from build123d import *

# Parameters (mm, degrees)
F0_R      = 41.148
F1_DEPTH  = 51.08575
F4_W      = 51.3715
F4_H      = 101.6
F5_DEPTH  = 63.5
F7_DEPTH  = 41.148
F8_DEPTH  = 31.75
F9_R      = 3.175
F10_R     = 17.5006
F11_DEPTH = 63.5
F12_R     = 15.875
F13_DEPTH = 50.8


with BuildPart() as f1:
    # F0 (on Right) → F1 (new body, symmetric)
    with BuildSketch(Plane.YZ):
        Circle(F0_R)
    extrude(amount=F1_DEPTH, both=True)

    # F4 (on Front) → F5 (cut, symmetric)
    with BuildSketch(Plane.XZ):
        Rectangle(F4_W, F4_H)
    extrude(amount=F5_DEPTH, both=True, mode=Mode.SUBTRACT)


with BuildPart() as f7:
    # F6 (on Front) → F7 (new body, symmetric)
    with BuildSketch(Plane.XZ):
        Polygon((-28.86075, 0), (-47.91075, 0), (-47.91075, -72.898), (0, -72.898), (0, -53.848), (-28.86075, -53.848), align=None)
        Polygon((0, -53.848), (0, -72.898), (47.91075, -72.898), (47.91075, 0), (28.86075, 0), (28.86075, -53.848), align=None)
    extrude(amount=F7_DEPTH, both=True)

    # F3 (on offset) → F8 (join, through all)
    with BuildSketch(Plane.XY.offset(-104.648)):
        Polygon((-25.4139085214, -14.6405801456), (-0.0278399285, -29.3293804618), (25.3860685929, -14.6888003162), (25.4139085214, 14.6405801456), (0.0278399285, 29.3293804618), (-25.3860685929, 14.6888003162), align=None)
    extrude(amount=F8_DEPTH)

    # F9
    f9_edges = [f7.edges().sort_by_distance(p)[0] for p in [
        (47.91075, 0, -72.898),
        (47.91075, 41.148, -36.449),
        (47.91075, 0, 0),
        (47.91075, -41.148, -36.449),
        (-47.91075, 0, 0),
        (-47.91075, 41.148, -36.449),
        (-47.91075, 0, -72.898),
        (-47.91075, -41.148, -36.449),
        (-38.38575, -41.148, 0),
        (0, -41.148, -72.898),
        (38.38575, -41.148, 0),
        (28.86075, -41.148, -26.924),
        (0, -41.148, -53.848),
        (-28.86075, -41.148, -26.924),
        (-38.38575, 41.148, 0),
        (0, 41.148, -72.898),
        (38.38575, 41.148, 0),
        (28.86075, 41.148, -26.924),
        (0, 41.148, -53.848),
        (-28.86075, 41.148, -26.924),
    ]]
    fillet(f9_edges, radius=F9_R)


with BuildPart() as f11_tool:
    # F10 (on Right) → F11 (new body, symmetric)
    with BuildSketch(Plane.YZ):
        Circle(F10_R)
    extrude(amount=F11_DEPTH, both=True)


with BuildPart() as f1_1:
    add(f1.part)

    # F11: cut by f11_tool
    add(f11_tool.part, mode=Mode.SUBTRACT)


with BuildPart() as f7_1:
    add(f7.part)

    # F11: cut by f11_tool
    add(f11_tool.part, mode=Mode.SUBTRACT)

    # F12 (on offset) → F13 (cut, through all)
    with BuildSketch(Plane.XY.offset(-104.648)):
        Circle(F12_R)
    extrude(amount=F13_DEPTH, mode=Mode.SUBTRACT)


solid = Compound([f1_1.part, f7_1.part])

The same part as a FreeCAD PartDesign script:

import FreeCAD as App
import Part
import Sketcher
from FreeCAD import Vector
Q = App.Units.Quantity


def edges_at(feature, points):
    """Names of the edges that pass closest to the given points."""
    edges = feature.Shape.Edges
    near = lambda p: min(range(len(edges)), key=lambda i: edges[i].distToShape(Part.Vertex(*p))[0])
    return sorted({f"Edge{near(p) + 1}" for p in points})

doc = App.newDocument("Part")
body = doc.addObject("PartDesign::Body", "Body")
body.AllowCompound = True

# Sketch on YZ plane
sketch1 = doc.addObject("Sketcher::SketchObject", "Sketch")
body.addObject(sketch1)
sketch1.AttachmentSupport = (doc.YZ_Plane, [""])
sketch1.MapMode = "FlatFace"
sketch1.addGeometry(Part.Circle(Vector(0, 0, 0), Vector(0, 0, 1), 41), False)
sketch1.addConstraint([
    Sketcher.Constraint("Coincident", 0, 3, -1, 1),
    Sketcher.Constraint("Diameter", 0, Q("3.24 in")),
])
pad1 = doc.addObject("PartDesign::Pad", "Pad")
body.addObject(pad1)
pad1.Profile = sketch1
pad1.Length = Q("4.0225 in")
pad1.Midplane = True

# Sketch on XZ plane
sketch2 = doc.addObject("Sketcher::SketchObject", "Sketch001")
body.addObject(sketch2)
sketch2.AttachmentSupport = (doc.XZ_Plane, [""])
sketch2.MapMode = "FlatFace"
sketch2.addGeometry([
    Part.LineSegment(Vector(-26, 51, 0), Vector(-26, -51, 0)),
    Part.LineSegment(Vector(-26, -51, 0), Vector(26, -51, 0)),
    Part.LineSegment(Vector(26, -51, 0), Vector(26, 51, 0)),
    Part.LineSegment(Vector(26, 51, 0), Vector(-26, 51, 0)),
], False)
sketch2.addConstraint([
    Sketcher.Constraint("Coincident", 0, 2, 1, 1),
    Sketcher.Constraint("Coincident", 1, 2, 2, 1),
    Sketcher.Constraint("Coincident", 2, 2, 3, 1),
    Sketcher.Constraint("Coincident", 3, 2, 0, 1),
    Sketcher.Constraint("Vertical", 0),
    Sketcher.Constraint("Horizontal", 1),
    Sketcher.Constraint("Vertical", 2),
    Sketcher.Constraint("Horizontal", 3),
    Sketcher.Constraint("Symmetric", 0, 2, 2, 2, -1, 1),
    Sketcher.Constraint("DistanceY", 0, 2, 0, 1, Q("4 in")),
    Sketcher.Constraint("DistanceX", 1, 1, 1, 2, Q("2.0225 in")),
])
pocket1 = doc.addObject("PartDesign::Pocket", "Pocket")
body.addObject(pocket1)
pocket1.Profile = sketch2
pocket1.Length = Q("5 in")
pocket1.Midplane = True
body2 = doc.addObject("PartDesign::Body", "Body001")

# Sketch on XZ plane
sketch3 = doc.addObject("Sketcher::SketchObject", "Sketch002")
body2.addObject(sketch3)
sketch3.AttachmentSupport = (doc.getObject("XZ_Plane001"), [""])
sketch3.MapMode = "FlatFace"
sketch3.addGeometry([
    Part.LineSegment(Vector(-29, 0, 0), Vector(-48, 0, 0)),  # 0
    Part.LineSegment(Vector(-48, 0, 0), Vector(-48, -73, 0)),  # 1
    Part.LineSegment(Vector(-48, -73, 0), Vector(48, -73, 0)),  # 2
    Part.LineSegment(Vector(48, -73, 0), Vector(48, 0, 0)),  # 3
    Part.LineSegment(Vector(48, 0, 0), Vector(29, 0, 0)),  # 4
    Part.LineSegment(Vector(29, 0, 0), Vector(29, -54, 0)),  # 5
    Part.LineSegment(Vector(29, -54, 0), Vector(-29, -54, 0)),  # 6
    Part.LineSegment(Vector(-29, -54, 0), Vector(-29, 0, 0)),  # 7
], False)
sketch3.addConstraint([
    Sketcher.Constraint("Coincident", 0, 2, 1, 1),
    Sketcher.Constraint("Coincident", 1, 2, 2, 1),
    Sketcher.Constraint("Coincident", 2, 2, 3, 1),
    Sketcher.Constraint("Coincident", 3, 2, 4, 1),
    Sketcher.Constraint("Coincident", 4, 2, 5, 1),
    Sketcher.Constraint("Coincident", 5, 2, 6, 1),
    Sketcher.Constraint("Coincident", 6, 2, 7, 1),
    Sketcher.Constraint("Coincident", 7, 2, 0, 1),
    Sketcher.Constraint("Horizontal", 0),
    Sketcher.Constraint("Vertical", 1),
    Sketcher.Constraint("Horizontal", 2),
    Sketcher.Constraint("Vertical", 3),
    Sketcher.Constraint("Horizontal", 4),
    Sketcher.Constraint("Vertical", 5),
    Sketcher.Constraint("Horizontal", 6),
    Sketcher.Constraint("Vertical", 7),
    Sketcher.Constraint("Symmetric", 0, 2, 3, 2, -1, 1),
    Sketcher.Constraint("Symmetric", 4, 2, 7, 2, -2),
    Sketcher.Constraint("DistanceX", 0, 2, 0, 1, Q("0.75 in")),
    Sketcher.Constraint("DistanceY", 1, 2, 1, 1, Q("2.87 in")),
    Sketcher.Constraint("DistanceY", 5, 2, 5, 1, Q("2.12 in")),
    Sketcher.Constraint("DistanceX", 2, 1, 2, 2, Q("3.7725 in")),
])
pad2 = doc.addObject("PartDesign::Pad", "Pad001")
body2.addObject(pad2)
pad2.Profile = sketch3
pad2.Length = Q("3.24 in")
pad2.Midplane = True

# Sketch on XY plane
sketch4 = doc.addObject("Sketcher::SketchObject", "Sketch003")
body2.addObject(sketch4)
sketch4.AttachmentSupport = (doc.getObject("XY_Plane001"), [""])
sketch4.MapMode = "FlatFace"
sketch4.AttachmentOffset = App.Placement(Vector(0, 0, -4.12 * 25.4), App.Rotation())
sketch4.addGeometry([
    Part.LineSegment(Vector(-25, -15, 0), Vector(0, -29, 0)),  # 0
    Part.LineSegment(Vector(0, -29, 0), Vector(25, -15, 0)),  # 1
    Part.LineSegment(Vector(25, -15, 0), Vector(25, 15, 0)),  # 2
    Part.LineSegment(Vector(25, 15, 0), Vector(0, 29, 0)),  # 3
    Part.LineSegment(Vector(0, 29, 0), Vector(-25, 15, 0)),  # 4
    Part.LineSegment(Vector(-25, 15, 0), Vector(-25, -15, 0)),  # 5
], False)
sketch4.addConstraint([
    Sketcher.Constraint("Coincident", 0, 2, 1, 1),
    Sketcher.Constraint("Coincident", 1, 2, 2, 1),
    Sketcher.Constraint("Coincident", 2, 2, 3, 1),
    Sketcher.Constraint("Coincident", 3, 2, 4, 1),
    Sketcher.Constraint("Coincident", 4, 2, 5, 1),
    Sketcher.Constraint("Coincident", 5, 2, 0, 1),
    Sketcher.Constraint("Symmetric", 0, 2, 3, 2, -1, 1),
    Sketcher.Constraint("Symmetric", 1, 2, 4, 2, -1, 1),
    Sketcher.Constraint("Symmetric", 2, 2, 5, 2, -1, 1),
    Sketcher.Constraint("Equal", 0, 1),
    Sketcher.Constraint("Equal", 1, 2),
    Sketcher.Constraint("DistanceY", 0, 2, -1, 1, Q("1.1547 in")),
    Sketcher.Constraint("DistanceY", 1, 2, 2, 2, Q("1.1547 in")),
    Sketcher.Constraint("DistanceY", 1, 2, -1, 1, Q("14.6888 mm")),
    Sketcher.Constraint("DistanceX", 0, 2, -1, 1, Q("0.02784 mm")),
])
pad3 = doc.addObject("PartDesign::Pad", "Pad002")
body2.addObject(pad3)
pad3.Profile = sketch4
pad3.Type = "UpToLast"
doc.recompute()

fillet = doc.addObject("PartDesign::Fillet", "Fillet")
body2.addObject(fillet)
fillet.Base = (pad3, edges_at(pad3, [
    (47.911, 0, -72.898),
    (47.911, 41.148, -36.449),
    (47.911, 0, 0),
    (47.911, -41.148, -36.449),
    (-47.911, 0, 0),
    (-47.911, 41.148, -36.449),
    (-47.911, 0, -72.898),
    (-47.911, -41.148, -36.449),
    (-38.386, -41.148, 0),
    (0, -41.148, -72.898),
    (38.386, -41.148, 0),
    (28.861, -41.148, -26.924),
    (0, -41.148, -53.848),
    (-28.861, -41.148, -26.924),
    (-38.386, 41.148, 0),
    (0, 41.148, -72.898),
    (38.386, 41.148, 0),
    (28.861, 41.148, -26.924),
    (0, 41.148, -53.848),
    (-28.861, 41.148, -26.924),
]))
fillet.Radius = Q("0.125 in")
body3 = doc.addObject("PartDesign::Body", "Body002")

# Sketch on YZ plane
sketch5 = doc.addObject("Sketcher::SketchObject", "Sketch004")
body3.addObject(sketch5)
sketch5.AttachmentSupport = (doc.getObject("YZ_Plane002"), [""])
sketch5.MapMode = "FlatFace"
sketch5.addGeometry(Part.Circle(Vector(0, 0, 0), Vector(0, 0, 1), 18), False)
sketch5.addConstraint([
    Sketcher.Constraint("Coincident", 0, 3, -1, 1),
    Sketcher.Constraint("Diameter", 0, Q("1.378 in")),
])
pad4 = doc.addObject("PartDesign::Pad", "Pad003")
body3.addObject(pad4)
pad4.Profile = sketch5
pad4.Length = Q("5 in")
pad4.Midplane = True
body.AllowCompound = True
doc.recompute()

body4 = doc.addObject("PartDesign::Body", "Body003")
body4.BaseFeature = body3
boolean = doc.addObject("PartDesign::Boolean", "Boolean")
body.addObject(boolean)
boolean.Type = "Cut"
boolean.addObjects([body4])
doc.recompute()

boolean2 = doc.addObject("PartDesign::Boolean", "Boolean001")
body2.addObject(boolean2)
boolean2.Type = "Cut"
boolean2.addObjects([body3])

# Sketch on XY plane
sketch6 = doc.addObject("Sketcher::SketchObject", "Sketch005")
body2.addObject(sketch6)
sketch6.AttachmentSupport = (doc.getObject("XY_Plane001"), [""])
sketch6.MapMode = "FlatFace"
sketch6.AttachmentOffset = App.Placement(Vector(0, 0, -4.12 * 25.4), App.Rotation())
sketch6.addGeometry(Part.Circle(Vector(0, 0, 0), Vector(0, 0, 1), 16), False)
sketch6.addConstraint([
    Sketcher.Constraint("Coincident", 0, 3, -1, 1),
    Sketcher.Constraint("Diameter", 0, Q("1.25 in")),
])
pocket2 = doc.addObject("PartDesign::Pocket", "Pocket001")
body2.addObject(pocket2)
pocket2.Profile = sketch6
pocket2.Type = "ThroughAll"
pocket2.Reversed = True

doc.recompute()
